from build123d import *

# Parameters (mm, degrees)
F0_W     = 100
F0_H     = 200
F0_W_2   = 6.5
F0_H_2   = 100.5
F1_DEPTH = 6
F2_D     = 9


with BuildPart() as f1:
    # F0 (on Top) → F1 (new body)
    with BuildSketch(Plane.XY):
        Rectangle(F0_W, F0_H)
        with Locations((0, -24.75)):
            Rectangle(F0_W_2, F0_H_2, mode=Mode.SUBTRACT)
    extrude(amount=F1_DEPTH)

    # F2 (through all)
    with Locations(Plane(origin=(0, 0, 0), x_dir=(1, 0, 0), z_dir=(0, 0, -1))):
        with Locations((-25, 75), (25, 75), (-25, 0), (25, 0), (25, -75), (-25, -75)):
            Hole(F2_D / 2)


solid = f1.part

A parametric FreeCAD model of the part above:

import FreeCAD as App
import Part
import Sketcher

V = App.Vector
Q = App.Units.Quantity


def add_polygon(sketch, points):
    """Adds a closed chain of lines whose ends are joined by coincident constraints."""
    first, n = sketch.GeometryCount, len(points)
    for a, b in zip(points, points[1:] + points[:1]):
        sketch.addGeometry(Part.LineSegment(App.Vector(*a, 0), App.Vector(*b, 0)), False)
    for i in range(n):
        sketch.addConstraint(Sketcher.Constraint("Coincident", first + i, 2, first + (i + 1) % n, 1))

doc = App.newDocument("Part")
body = doc.addObject("PartDesign::Body", "Body")

# Sketch on XY plane
sketch1 = body.newObject("Sketcher::SketchObject", "Sketch")
sketch1.AttachmentSupport = (doc.getObject("XY_Plane"), [""])
sketch1.MapMode = "FlatFace"
add_polygon(sketch1, [(-50, 100), (-50, -100), (50, -100), (50, 100)])  # lines 0-3
add_polygon(sketch1, [(3, -75), (-3, -75), (-3, 26), (3, 26)])  # lines 4-7
sketch1.addConstraint(Sketcher.Constraint("Vertical", 0))
sketch1.addConstraint(Sketcher.Constraint("Horizontal", 1))
sketch1.addConstraint(Sketcher.Constraint("Vertical", 2))
sketch1.addConstraint(Sketcher.Constraint("Horizontal", 3))
sketch1.addConstraint(Sketcher.Constraint("Horizontal", 4))
sketch1.addConstraint(Sketcher.Constraint("Vertical", 5))
sketch1.addConstraint(Sketcher.Constraint("Horizontal", 6))
sketch1.addConstraint(Sketcher.Constraint("Vertical", 7))
sketch1.addConstraint(Sketcher.Constraint("Symmetric", 0, 2, 2, 2, -1, 1))
sketch1.addConstraint(Sketcher.Constraint("DistanceX", 1, 1, 1, 2, Q("100 mm")))
sketch1.addConstraint(Sketcher.Constraint("DistanceY", 0, 2, 0, 1, Q("200 mm")))
sketch1.addConstraint(Sketcher.Constraint("DistanceX", 4, 2, 4, 1, Q("6.5 mm")))
sketch1.addConstraint(Sketcher.Constraint("DistanceY", 5, 1, 5, 2, Q("100.5 mm")))
sketch1.addConstraint(Sketcher.Constraint("DistanceY", 4, 2, -1, 1, Q("75 mm")))
sketch1.addConstraint(Sketcher.Constraint("DistanceX", 4, 2, -1, 1, Q("3.25 mm")))
pad1 = body.newObject("PartDesign::Pad", "Pad")
pad1.Profile = sketch1
pad1.Length = 6

# Sketch on XY plane
sketch2 = body.newObject("Sketcher::SketchObject", "Sketch001")
sketch2.AttachmentSupport = (doc.getObject("XY_Plane"), [""])
sketch2.MapMode = "FlatFace"
sketch2.addGeometry(Part.Circle(V(-25, -75, 0), V(0, 0, 1), 4.5), False)
sketch2.addGeometry(Part.Circle(V(25, -75, 0), V(0, 0, 1), 4.5), False)
sketch2.addGeometry(Part.Circle(V(-25, 0, 0), V(0, 0, 1), 4.5), False)
sketch2.addGeometry(Part.Circle(V(25, 0, 0), V(0, 0, 1), 4.5), False)
sketch2.addGeometry(Part.Circle(V(25, 75, 0), V(0, 0, 1), 4.5), False)
sketch2.addGeometry(Part.Circle(V(-25, 75, 0), V(0, 0, 1), 4.5), False)
sketch2.addConstraint(Sketcher.Constraint("Equal", 0, 1))
sketch2.addConstraint(Sketcher.Constraint("Equal", 1, 2))
sketch2.addConstraint(Sketcher.Constraint("Equal", 2, 3))
sketch2.addConstraint(Sketcher.Constraint("Equal", 3, 4))
sketch2.addConstraint(Sketcher.Constraint("Equal", 4, 5))
sketch2.addConstraint(Sketcher.Constraint("Symmetric", 2, 3, 3, 3, -1, 1))
sketch2.addConstraint(Sketcher.Constraint("Symmetric", 0, 3, 4, 3, -1, 1))
sketch2.addConstraint(Sketcher.Constraint("Symmetric", 1, 3, 5, 3, -1, 1))
sketch2.addConstraint(Sketcher.Constraint("Symmetric", 0, 3, 1, 3, -2))
sketch2.addConstraint(Sketcher.Constraint("PointOnObject", 2, 3, -1))
sketch2.addConstraint(Sketcher.Constraint("Vertical", 0, 3, 2, 3))
sketch2.addConstraint(Sketcher.Constraint("Diameter", 0, Q("9 mm")))
sketch2.addConstraint(Sketcher.Constraint("DistanceX", 0, 3, -1, 1, Q("25 mm")))
sketch2.addConstraint(Sketcher.Constraint("DistanceY", 0, 3, -1, 1, Q("75 mm")))
doc.recompute()
hole = body.newObject("PartDesign::Hole", "Hole")
hole.Profile = sketch2
hole.ThreadType = "None"
hole.Diameter = 9
hole.DepthType = "ThroughAll"
hole.Reversed = True

doc.recompute()
